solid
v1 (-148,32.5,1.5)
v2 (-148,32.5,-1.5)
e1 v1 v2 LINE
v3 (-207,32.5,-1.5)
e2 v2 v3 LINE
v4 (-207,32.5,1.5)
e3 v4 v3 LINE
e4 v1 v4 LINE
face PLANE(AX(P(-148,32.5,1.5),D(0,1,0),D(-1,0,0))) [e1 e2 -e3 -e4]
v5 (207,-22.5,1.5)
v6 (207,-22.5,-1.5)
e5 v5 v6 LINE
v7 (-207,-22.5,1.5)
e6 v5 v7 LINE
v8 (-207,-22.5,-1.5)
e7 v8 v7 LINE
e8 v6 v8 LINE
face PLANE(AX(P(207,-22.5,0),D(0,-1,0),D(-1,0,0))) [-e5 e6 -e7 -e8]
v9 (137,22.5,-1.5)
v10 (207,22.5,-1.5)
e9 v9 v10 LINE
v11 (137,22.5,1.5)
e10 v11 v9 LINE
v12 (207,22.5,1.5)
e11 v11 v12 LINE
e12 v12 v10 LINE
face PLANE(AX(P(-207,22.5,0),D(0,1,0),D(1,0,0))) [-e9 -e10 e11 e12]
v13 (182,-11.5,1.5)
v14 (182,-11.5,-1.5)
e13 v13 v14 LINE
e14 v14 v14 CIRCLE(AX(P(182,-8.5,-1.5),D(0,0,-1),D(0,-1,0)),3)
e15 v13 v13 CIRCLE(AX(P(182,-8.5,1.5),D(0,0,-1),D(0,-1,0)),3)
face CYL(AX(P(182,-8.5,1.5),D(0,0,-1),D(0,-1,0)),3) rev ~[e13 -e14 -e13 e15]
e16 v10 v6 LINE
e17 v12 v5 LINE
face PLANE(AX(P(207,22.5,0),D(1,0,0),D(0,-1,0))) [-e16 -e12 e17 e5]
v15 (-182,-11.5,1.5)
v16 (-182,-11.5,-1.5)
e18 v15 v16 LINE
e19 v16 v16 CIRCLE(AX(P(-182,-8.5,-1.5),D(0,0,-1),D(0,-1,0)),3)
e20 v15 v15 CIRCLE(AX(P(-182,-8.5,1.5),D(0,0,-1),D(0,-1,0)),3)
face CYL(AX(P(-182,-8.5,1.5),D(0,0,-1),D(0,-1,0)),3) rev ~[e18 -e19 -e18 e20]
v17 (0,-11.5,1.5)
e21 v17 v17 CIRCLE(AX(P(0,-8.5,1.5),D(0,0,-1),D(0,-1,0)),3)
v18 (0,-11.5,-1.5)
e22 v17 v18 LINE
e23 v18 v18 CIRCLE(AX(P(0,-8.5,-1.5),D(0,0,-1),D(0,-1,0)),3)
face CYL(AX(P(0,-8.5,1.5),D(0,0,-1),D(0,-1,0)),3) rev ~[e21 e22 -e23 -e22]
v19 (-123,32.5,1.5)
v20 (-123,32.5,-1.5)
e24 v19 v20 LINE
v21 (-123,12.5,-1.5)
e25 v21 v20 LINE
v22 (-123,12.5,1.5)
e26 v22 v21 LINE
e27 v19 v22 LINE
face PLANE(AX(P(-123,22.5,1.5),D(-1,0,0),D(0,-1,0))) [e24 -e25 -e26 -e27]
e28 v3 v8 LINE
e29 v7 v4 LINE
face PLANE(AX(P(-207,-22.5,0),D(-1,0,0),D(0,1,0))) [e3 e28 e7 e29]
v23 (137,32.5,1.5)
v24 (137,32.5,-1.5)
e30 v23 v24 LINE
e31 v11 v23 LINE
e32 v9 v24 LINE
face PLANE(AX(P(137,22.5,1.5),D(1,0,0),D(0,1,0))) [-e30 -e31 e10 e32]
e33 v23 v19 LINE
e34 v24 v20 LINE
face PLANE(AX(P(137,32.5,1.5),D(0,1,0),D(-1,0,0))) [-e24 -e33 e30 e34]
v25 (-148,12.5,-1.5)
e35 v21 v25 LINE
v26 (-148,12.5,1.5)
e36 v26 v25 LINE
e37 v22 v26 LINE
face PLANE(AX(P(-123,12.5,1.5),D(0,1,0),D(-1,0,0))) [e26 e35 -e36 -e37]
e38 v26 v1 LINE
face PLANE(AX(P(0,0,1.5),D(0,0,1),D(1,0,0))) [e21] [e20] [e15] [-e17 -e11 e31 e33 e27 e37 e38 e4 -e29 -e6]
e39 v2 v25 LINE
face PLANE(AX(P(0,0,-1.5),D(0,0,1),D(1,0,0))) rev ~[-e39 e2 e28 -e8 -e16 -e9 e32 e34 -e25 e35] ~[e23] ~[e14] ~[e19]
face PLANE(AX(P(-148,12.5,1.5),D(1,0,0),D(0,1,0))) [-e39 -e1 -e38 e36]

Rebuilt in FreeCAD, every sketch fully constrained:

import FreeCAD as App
import Part
import Sketcher


def add_polygon(sketch, points):
    """Adds a closed chain of lines whose ends are joined by coincident constraints."""
    first, n = sketch.GeometryCount, len(points)
    for a, b in zip(points, points[1:] + points[:1]):
        sketch.addGeometry(Part.LineSegment(App.Vector(*a, 0), App.Vector(*b, 0)), False)
    for i in range(n):
        sketch.addConstraint(Sketcher.Constraint("Coincident", first + i, 2, first + (i + 1) % n, 1))

doc = App.newDocument("Part")
body = doc.addObject("PartDesign::Body", "Body")

# Sketch on XY plane
sketch1 = doc.addObject("Sketcher::SketchObject", "Sketch")
body.addObject(sketch1)
sketch1.AttachmentSupport = (doc.XY_Plane, [""])
sketch1.MapMode = "FlatFace"
add_polygon(sketch1, [(207, 22), (-207, 22), (-207, -22), (207, -22)])  # lines 0-3
sketch1.addConstraint(Sketcher.Constraint("Horizontal", 0))
sketch1.addConstraint(Sketcher.Constraint("Vertical", 1))
sketch1.addConstraint(Sketcher.Constraint("Horizontal", 2))
sketch1.addConstraint(Sketcher.Constraint("Vertical", 3))
sketch1.addConstraint(Sketcher.Constraint("Symmetric", 0, 2, 2, 2, -1, 1))
sketch1.addConstraint(Sketcher.Constraint("DistanceX", 0, 2, 0, 1, 414.0))
sketch1.addConstraint(Sketcher.Constraint("DistanceY", 1, 2, 1, 1, 45.0))
pad1 = doc.addObject("PartDesign::Pad", "Pad")
body.addObject(pad1)
pad1.Profile = sketch1
pad1.Length = 3
pad1.Midplane = True

# Sketch on XY plane
sketch2 = doc.addObject("Sketcher::SketchObject", "Sketch001")
body.addObject(sketch2)
sketch2.AttachmentSupport = (doc.XY_Plane, [""])
sketch2.MapMode = "FlatFace"
sketch2.AttachmentOffset = App.Placement(App.Vector(0, 0, 1.5), App.Rotation())
sketch2.addGeometry(Part.Circle(App.Vector(-182, -8.5, 0), App.Vector(0, 0, 1), 3), False)
sketch2.addGeometry(Part.Circle(App.Vector(0, -8.5, 0), App.Vector(0, 0, 1), 3), False)
sketch2.addGeometry(Part.Circle(App.Vector(182, -8.5, 0), App.Vector(0, 0, 1), 3), False)
sketch2.addConstraint(Sketcher.Constraint("Equal", 0, 1))
sketch2.addConstraint(Sketcher.Constraint("Equal", 1, 2))
sketch2.addConstraint(Sketcher.Constraint("Symmetric", 0, 3, 2, 3, -2))
sketch2.addConstraint(Sketcher.Constraint("PointOnObject", 1, 3, -2))
sketch2.addConstraint(Sketcher.Constraint("Horizontal", 0, 3, 1, 3))
sketch2.addConstraint(Sketcher.Constraint("Diameter", 0, 6.0))
sketch2.addConstraint(Sketcher.Constraint("DistanceX", 0, 3, -1, 1, 182.0))
sketch2.addConstraint(Sketcher.Constraint("DistanceY", 0, 3, -1, 1, 8.5))
doc.recompute()
hole = doc.addObject("PartDesign::Hole", "Hole")
body.addObject(hole)
hole.Profile = sketch2
hole.ThreadType = "None"
hole.Diameter = 6
hole.DepthType = "Dimension"
hole.Depth = 14.2
hole.DrillPoint = "Angled"
hole.DrillPointAngle = 118

# Sketch on XY plane
sketch3 = doc.addObject("Sketcher::SketchObject", "Sketch002")
body.addObject(sketch3)
sketch3.AttachmentSupport = (doc.XY_Plane, [""])
sketch3.MapMode = "FlatFace"
sketch3.AttachmentOffset = App.Placement(App.Vector(0, 0, 1.5), App.Rotation())
add_polygon(sketch3, [(-123, 22), (-148, 22), (-148, 12), (-123, 12)])  # lines 0-3
sketch3.addConstraint(Sketcher.Constraint("Horizontal", 0))
sketch3.addConstraint(Sketcher.Constraint("Vertical", 1))
sketch3.addConstraint(Sketcher.Constraint("Horizontal", 2))
sketch3.addConstraint(Sketcher.Constraint("Vertical", 3))
sketch3.addConstraint(Sketcher.Constraint("DistanceX", 0, 2, 0, 1, 25.0))
sketch3.addConstraint(Sketcher.Constraint("DistanceY", 1, 2, 1, 1, 10.0))
sketch3.addConstraint(Sketcher.Constraint("DistanceX", 0, 2, -1, 1, 148.0))
sketch3.addConstraint(Sketcher.Constraint("DistanceY", -1, 1, 0, 2, 22.5))
pocket1 = doc.addObject("PartDesign::Pocket", "Pocket")
body.addObject(pocket1)
pocket1.Profile = sketch3
pocket1.Length = 3

# Sketch on XY plane
sketch4 = doc.addObject("Sketcher::SketchObject", "Sketch003")
body.addObject(sketch4)
sketch4.AttachmentSupport = (doc.XY_Plane, [""])
sketch4.MapMode = "FlatFace"
sketch4.AttachmentOffset = App.Placement(App.Vector(0, 0, 1.5), App.Rotation())
add_polygon(sketch4, [(-207, 22), (-148, 22), (-148, 32), (-207, 32)])  # lines 0-3
add_polygon(sketch4, [(-123, 32), (-123, 22), (137, 22), (137, 32)])  # lines 4-7
sketch4.addConstraint(Sketcher.Constraint("Horizontal", 0))
sketch4.addConstraint(Sketcher.Constraint("Vertical", 1))
sketch4.addConstraint(Sketcher.Constraint("Horizontal", 2))
sketch4.addConstraint(Sketcher.Constraint("Vertical", 3))
sketch4.addConstraint(Sketcher.Constraint("Vertical", 4))
sketch4.addConstraint(Sketcher.Constraint("Horizontal", 5))
sketch4.addConstraint(Sketcher.Constraint("Vertical", 6))
sketch4.addConstraint(Sketcher.Constraint("Horizontal", 7))
sketch4.addConstraint(Sketcher.Constraint("Horizontal", 3, 2, 4, 2))
sketch4.addConstraint(Sketcher.Constraint("Horizontal", 2, 2, 6, 2))
sketch4.addConstraint(Sketcher.Constraint("DistanceY", 1, 1, 1, 2, 10.0))
sketch4.addConstraint(Sketcher.Constraint("DistanceX", 0, 1, 0, 2, 59.0))
sketch4.addConstraint(Sketcher.Constraint("DistanceX", 5, 1, 5, 2, 260.0))
sketch4.addConstraint(Sketcher.Constraint("DistanceX", 0, 2, -1, 1, 148.0))
sketch4.addConstraint(Sketcher.Constraint("DistanceX", 4, 2, -1, 1, 123.0))
sketch4.addConstraint(Sketcher.Constraint("DistanceY", -1, 1, 0, 2, 22.5))
pad2 = doc.addObject("PartDesign::Pad", "Pad001")
body.addObject(pad2)
pad2.Profile = sketch4
pad2.Length = 3
pad2.Reversed = True

doc.recompute()
